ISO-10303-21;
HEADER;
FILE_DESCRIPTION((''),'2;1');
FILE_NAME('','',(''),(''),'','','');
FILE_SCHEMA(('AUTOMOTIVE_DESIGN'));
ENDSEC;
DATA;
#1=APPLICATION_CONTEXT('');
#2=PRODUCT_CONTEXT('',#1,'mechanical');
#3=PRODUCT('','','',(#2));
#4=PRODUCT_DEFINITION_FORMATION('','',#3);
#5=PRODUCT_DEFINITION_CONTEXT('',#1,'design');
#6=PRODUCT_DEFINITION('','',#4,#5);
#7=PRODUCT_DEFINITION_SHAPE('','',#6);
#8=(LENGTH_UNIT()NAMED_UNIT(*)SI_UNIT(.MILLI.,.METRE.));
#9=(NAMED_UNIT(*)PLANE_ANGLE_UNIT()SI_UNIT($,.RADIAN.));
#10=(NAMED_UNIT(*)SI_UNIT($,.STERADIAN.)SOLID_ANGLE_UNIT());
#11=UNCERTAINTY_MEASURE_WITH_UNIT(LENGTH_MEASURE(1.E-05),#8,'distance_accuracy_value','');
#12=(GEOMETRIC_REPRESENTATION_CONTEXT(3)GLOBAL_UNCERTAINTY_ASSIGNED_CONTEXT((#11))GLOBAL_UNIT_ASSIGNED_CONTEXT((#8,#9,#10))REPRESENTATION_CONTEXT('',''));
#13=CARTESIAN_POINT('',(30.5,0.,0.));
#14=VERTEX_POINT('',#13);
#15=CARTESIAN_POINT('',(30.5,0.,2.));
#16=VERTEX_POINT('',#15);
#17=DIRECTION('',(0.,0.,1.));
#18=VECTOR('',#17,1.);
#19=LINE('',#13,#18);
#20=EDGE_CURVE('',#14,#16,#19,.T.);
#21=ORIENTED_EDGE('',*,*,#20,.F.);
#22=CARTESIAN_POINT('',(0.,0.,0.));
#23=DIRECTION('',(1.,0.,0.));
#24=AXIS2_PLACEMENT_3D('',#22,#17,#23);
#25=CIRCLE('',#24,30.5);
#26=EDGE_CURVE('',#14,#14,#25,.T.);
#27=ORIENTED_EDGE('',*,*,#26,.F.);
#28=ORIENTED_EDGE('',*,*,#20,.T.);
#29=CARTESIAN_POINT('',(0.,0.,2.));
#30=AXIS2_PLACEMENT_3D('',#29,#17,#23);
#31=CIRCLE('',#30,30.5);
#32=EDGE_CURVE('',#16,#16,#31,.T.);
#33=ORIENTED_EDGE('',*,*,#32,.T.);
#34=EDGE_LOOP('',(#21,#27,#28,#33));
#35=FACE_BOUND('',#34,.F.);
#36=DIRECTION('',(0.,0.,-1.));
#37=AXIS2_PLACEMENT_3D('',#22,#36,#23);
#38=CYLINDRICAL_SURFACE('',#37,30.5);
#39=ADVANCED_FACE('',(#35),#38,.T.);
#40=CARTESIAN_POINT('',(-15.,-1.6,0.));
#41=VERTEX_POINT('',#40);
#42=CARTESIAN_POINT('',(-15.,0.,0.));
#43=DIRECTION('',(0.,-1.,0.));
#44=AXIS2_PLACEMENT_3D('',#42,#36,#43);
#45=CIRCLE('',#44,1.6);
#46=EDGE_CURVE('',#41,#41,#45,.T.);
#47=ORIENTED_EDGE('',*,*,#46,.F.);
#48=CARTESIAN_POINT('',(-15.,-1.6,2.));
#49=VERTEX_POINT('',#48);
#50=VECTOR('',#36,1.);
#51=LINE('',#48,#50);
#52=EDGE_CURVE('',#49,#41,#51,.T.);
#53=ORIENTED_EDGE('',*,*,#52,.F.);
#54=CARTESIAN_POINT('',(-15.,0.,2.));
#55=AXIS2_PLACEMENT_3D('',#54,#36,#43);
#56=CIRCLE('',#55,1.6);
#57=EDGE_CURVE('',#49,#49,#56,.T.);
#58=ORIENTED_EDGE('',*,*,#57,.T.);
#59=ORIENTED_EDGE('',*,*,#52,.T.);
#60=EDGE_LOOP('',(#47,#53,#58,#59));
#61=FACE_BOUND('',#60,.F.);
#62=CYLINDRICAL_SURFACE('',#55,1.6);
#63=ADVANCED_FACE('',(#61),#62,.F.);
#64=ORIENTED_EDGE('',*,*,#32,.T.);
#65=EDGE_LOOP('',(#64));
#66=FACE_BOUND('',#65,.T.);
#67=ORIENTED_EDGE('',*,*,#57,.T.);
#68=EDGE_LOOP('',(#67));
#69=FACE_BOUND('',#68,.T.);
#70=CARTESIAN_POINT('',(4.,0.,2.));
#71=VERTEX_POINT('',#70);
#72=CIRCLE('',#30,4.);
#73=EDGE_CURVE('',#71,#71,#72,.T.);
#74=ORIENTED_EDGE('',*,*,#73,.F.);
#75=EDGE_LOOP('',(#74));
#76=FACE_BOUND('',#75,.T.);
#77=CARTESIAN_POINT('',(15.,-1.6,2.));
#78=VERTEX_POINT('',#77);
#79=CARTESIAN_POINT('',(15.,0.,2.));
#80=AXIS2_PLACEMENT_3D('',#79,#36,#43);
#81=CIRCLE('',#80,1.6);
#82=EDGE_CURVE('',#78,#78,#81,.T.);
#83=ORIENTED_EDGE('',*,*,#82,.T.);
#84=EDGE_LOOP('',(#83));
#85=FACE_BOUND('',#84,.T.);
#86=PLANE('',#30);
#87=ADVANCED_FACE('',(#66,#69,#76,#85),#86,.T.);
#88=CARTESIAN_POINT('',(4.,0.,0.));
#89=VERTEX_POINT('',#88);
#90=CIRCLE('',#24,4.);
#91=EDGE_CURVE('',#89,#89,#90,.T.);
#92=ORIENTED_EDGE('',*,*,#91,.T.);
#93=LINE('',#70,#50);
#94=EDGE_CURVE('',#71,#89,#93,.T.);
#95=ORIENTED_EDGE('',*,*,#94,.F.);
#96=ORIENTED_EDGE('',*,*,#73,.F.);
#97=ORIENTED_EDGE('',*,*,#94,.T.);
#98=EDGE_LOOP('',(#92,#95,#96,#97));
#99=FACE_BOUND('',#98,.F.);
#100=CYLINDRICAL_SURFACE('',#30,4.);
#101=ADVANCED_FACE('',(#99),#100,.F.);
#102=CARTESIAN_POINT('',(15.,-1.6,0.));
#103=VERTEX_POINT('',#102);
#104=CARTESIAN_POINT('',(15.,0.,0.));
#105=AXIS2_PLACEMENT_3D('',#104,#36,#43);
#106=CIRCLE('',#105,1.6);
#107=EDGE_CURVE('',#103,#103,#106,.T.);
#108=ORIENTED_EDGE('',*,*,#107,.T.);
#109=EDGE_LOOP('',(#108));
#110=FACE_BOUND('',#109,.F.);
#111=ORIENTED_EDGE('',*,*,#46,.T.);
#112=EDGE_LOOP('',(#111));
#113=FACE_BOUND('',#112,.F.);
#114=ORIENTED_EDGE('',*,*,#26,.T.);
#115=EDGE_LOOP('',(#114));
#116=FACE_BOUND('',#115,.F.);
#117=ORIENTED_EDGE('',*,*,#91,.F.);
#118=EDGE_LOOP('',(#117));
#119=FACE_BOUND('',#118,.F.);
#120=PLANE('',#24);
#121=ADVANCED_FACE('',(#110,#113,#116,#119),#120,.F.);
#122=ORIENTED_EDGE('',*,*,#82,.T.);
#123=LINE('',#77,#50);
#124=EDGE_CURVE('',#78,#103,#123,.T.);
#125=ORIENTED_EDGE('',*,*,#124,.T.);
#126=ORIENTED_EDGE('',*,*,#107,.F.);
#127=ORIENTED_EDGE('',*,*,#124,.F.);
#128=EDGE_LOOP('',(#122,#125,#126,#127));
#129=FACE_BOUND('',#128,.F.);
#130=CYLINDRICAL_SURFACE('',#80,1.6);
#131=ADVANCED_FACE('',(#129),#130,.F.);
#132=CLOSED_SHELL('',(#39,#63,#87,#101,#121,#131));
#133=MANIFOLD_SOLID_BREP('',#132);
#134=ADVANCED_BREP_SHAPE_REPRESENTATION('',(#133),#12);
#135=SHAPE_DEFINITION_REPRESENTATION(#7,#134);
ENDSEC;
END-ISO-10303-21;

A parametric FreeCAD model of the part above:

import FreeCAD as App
import Part
import Sketcher

V = App.Vector
Q = App.Units.Quantity

doc = App.newDocument("Part")
body = doc.addObject("PartDesign::Body", "Body")

# Sketch on XY plane
sketch1 = body.newObject("Sketcher::SketchObject", "Sketch")
sketch1.AttachmentSupport = (doc.getObject("XY_Plane"), [""])
sketch1.MapMode = "FlatFace"
sketch1.addGeometry(Part.Circle(V(0, 0, 0), V(0, 0, 1), 30), False)
sketch1.addConstraint(Sketcher.Constraint("Coincident", 0, 3, -1, 1))
sketch1.addConstraint(Sketcher.Constraint("Diameter", 0, Q("61 mm")))
pad1 = body.newObject("PartDesign::Pad", "Pad")
pad1.Profile = sketch1
pad1.Length = 2

# Sketch on XY plane
sketch2 = body.newObject("Sketcher::SketchObject", "Sketch001")
sketch2.AttachmentSupport = (doc.getObject("XY_Plane"), [""])
sketch2.MapMode = "FlatFace"
sketch2.AttachmentOffset = App.Placement(V(0, 0, 2), App.Rotation())
sketch2.addGeometry(Part.Circle(V(0, 0, 0), V(0, 0, 1), 4), False)
sketch2.addConstraint(Sketcher.Constraint("Coincident", 0, 3, -1, 1))
sketch2.addConstraint(Sketcher.Constraint("Diameter", 0, Q("8 mm")))
pocket1 = body.newObject("PartDesign::Pocket", "Pocket")
pocket1.Profile = sketch2
pocket1.Length = 2

# Sketch on XY plane
sketch3 = body.newObject("Sketcher::SketchObject", "Sketch002")
sketch3.AttachmentSupport = (doc.getObject("XY_Plane"), [""])
sketch3.MapMode = "FlatFace"
sketch3.AttachmentOffset = App.Placement(V(0, 0, 2), App.Rotation())
sketch3.addGeometry(Part.Circle(V(-15, 0, 0), V(0, 0, 1), 1.6), False)
sketch3.addGeometry(Part.Circle(V(15, 0, 0), V(0, 0, 1), 1.6), False)
sketch3.addConstraint(Sketcher.Constraint("Equal", 0, 1))
sketch3.addConstraint(Sketcher.Constraint("Symmetric", 0, 3, 1, 3, -1, 1))
sketch3.addConstraint(Sketcher.Constraint("PointOnObject", 0, 3, -1))
sketch3.addConstraint(Sketcher.Constraint("Diameter", 0, Q("3.2 mm")))
sketch3.addConstraint(Sketcher.Constraint("DistanceX", 0, 3, -1, 1, Q("15 mm")))
doc.recompute()
hole = body.newObject("PartDesign::Hole", "Hole")
hole.Profile = sketch3
hole.ThreadType = "None"
hole.Diameter = 3.2
hole.DepthType = "Dimension"
hole.Depth = 2
hole.DrillPoint = "Flat"

doc.recompute()
